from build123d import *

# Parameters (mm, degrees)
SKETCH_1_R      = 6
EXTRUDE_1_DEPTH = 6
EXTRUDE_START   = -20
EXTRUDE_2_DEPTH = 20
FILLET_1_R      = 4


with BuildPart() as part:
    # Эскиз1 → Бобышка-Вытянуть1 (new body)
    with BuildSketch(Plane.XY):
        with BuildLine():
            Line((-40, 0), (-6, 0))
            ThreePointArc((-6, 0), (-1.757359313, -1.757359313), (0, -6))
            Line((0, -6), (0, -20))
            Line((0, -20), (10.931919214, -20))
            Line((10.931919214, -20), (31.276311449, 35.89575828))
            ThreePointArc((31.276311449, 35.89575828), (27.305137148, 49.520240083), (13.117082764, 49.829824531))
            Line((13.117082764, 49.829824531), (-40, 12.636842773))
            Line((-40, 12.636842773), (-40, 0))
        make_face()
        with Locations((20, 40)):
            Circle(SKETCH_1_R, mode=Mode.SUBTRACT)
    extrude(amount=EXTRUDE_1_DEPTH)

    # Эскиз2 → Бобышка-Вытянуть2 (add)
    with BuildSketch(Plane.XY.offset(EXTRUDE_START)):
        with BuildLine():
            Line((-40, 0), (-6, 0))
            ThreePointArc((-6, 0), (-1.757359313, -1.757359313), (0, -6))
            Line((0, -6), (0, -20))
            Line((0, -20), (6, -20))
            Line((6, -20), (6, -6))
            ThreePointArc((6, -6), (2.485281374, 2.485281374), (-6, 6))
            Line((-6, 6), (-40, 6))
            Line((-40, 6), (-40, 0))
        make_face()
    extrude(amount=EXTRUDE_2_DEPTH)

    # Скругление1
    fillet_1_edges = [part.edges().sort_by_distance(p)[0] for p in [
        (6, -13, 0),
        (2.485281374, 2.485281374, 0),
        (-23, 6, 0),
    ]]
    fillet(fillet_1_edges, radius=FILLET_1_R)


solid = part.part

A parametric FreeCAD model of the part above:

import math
import FreeCAD as App
import Part
import Sketcher

V = App.Vector
Q = App.Units.Quantity


def edges_at(feature, points):
    """Names of the edges that pass closest to the given points."""
    edges = feature.Shape.Edges
    near = lambda p: min(range(len(edges)), key=lambda i: edges[i].distToShape(Part.Vertex(*p))[0])
    return sorted({f"Edge{near(p) + 1}" for p in points})

doc = App.newDocument("Part")
params = doc.addObject("Spreadsheet::Sheet", "Params")
for row, (alias, value) in enumerate([
    ("sketch1_diameter", "12 mm"),
    ("sketch1_radius", "12 mm"),
    ("sketch1_width", "34 mm"),
    ("sketch1_height", "14 mm"),
    ("pad1_length", "6 mm"),
    ("sketch2_radius", "6 mm"),
    ("sketch2_width", "34 mm"),
    ("sketch2_height", "14 mm"),
    ("pad2_length", "20 mm"),
    ("fillet_radius", "4 mm"),
], start=1):
    params.set(f"A{row}", alias)
    params.set(f"B{row}", "=" + value)
    params.setAlias(f"B{row}", alias)

body = doc.addObject("PartDesign::Body", "Body")

# Sketch on XY plane
sketch1 = doc.addObject("Sketcher::SketchObject", "Sketch")
body.addObject(sketch1)
sketch1.AttachmentSupport = (doc.XY_Plane, [""])
sketch1.MapMode = "FlatFace"
sketch1.addGeometry(Part.LineSegment(V(-40, 0, 0), V(-6, 0, 0)), False)
sketch1.addGeometry(Part.ArcOfCircle(Part.Circle(V(-6, -6, 0), V(0, 0, 1), 6), math.radians(0), math.radians(90)), False)
sketch1.addGeometry(Part.LineSegment(V(0, -6, 0), V(0, -20, 0)), False)
sketch1.addGeometry(Part.LineSegment(V(0, -20, 0), V(11, -20, 0)), False)
sketch1.addGeometry(Part.LineSegment(V(11, -20, 0), V(31, 36, 0)), False)
sketch1.addGeometry(Part.ArcOfCircle(Part.Circle(V(20, 40, 0), V(0, 0, 1), 12), math.radians(-20), math.radians(125)), False)
sketch1.addGeometry(Part.LineSegment(V(13, 50, 0), V(-40, 13, 0)), False)
sketch1.addGeometry(Part.LineSegment(V(-40, 13, 0), V(-40, 0, 0)), False)
sketch1.addGeometry(Part.Circle(V(20, 40, 0), V(0, 0, 1), 6), False)
sketch1.addConstraint(Sketcher.Constraint("Tangent", 0, 2, 1, 2))
sketch1.addConstraint(Sketcher.Constraint("Tangent", 1, 1, 2, 1))
sketch1.addConstraint(Sketcher.Constraint("Coincident", 2, 2, 3, 1))
sketch1.addConstraint(Sketcher.Constraint("Coincident", 3, 2, 4, 1))
sketch1.addConstraint(Sketcher.Constraint("Tangent", 4, 2, 5, 1))
sketch1.addConstraint(Sketcher.Constraint("Tangent", 5, 2, 6, 1))
sketch1.addConstraint(Sketcher.Constraint("Coincident", 6, 2, 7, 1))
sketch1.addConstraint(Sketcher.Constraint("Coincident", 7, 2, 0, 1))
sketch1.addConstraint(Sketcher.Constraint("Horizontal", 0))
sketch1.addConstraint(Sketcher.Constraint("Vertical", 2))
sketch1.addConstraint(Sketcher.Constraint("Horizontal", 3))
sketch1.addConstraint(Sketcher.Constraint("Vertical", 7))
sketch1.addConstraint(Sketcher.Constraint("Coincident", 8, 3, 5, 3))
sketch1.addConstraint(Sketcher.Constraint("Equal", 1, 8))
sketch1.addConstraint(Sketcher.Constraint("PointOnObject", 0, 2, -1))
sketch1.addConstraint(Sketcher.Constraint("PointOnObject", 1, 1, -2))
sketch1.addConstraint(Sketcher.Constraint("Diameter", 8, 12.0))
sketch1.addConstraint(Sketcher.Constraint("Radius", 5, 12.0))
sketch1.addConstraint(Sketcher.Constraint("DistanceX", 0, 1, 0, 2, 34.0))
sketch1.addConstraint(Sketcher.Constraint("DistanceY", 2, 2, 2, 1, 14.0))
sketch1.addConstraint(Sketcher.Constraint("Angle", 4, Q("70 deg")))
sketch1.addConstraint(Sketcher.Constraint("Angle", 6, Q("-145 deg")))
sketch1.addConstraint(Sketcher.Constraint("DistanceX", -1, 1, 5, 3, 20.0))
sketch1.addConstraint(Sketcher.Constraint("DistanceY", -1, 1, 5, 3, 40.0))
sketch1.setExpression("Constraints[16]", "Params.sketch1_diameter")
sketch1.setExpression("Constraints[17]", "Params.sketch1_radius")
sketch1.setExpression("Constraints[18]", "Params.sketch1_width")
sketch1.setExpression("Constraints[19]", "Params.sketch1_height")
pad1 = doc.addObject("PartDesign::Pad", "Pad")
body.addObject(pad1)
pad1.Profile = sketch1
pad1.setExpression("Length", "Params.pad1_length")

# Sketch on XY plane
sketch2 = doc.addObject("Sketcher::SketchObject", "Sketch001")
body.addObject(sketch2)
sketch2.AttachmentSupport = (doc.XY_Plane, [""])
sketch2.MapMode = "FlatFace"
sketch2.AttachmentOffset = App.Placement(V(0, 0, -20), App.Rotation())
sketch2.addGeometry(Part.LineSegment(V(-40, 0, 0), V(-6, 0, 0)), False)
sketch2.addGeometry(Part.ArcOfCircle(Part.Circle(V(-6, -6, 0), V(0, 0, 1), 6), math.radians(0), math.radians(90)), False)
sketch2.addGeometry(Part.LineSegment(V(0, -6, 0), V(0, -20, 0)), False)
sketch2.addGeometry(Part.LineSegment(V(0, -20, 0), V(6, -20, 0)), False)
sketch2.addGeometry(Part.LineSegment(V(6, -20, 0), V(6, -6, 0)), False)
sketch2.addGeometry(Part.ArcOfCircle(Part.Circle(V(-6, -6, 0), V(0, 0, 1), 12), math.radians(0), math.radians(90)), False)
sketch2.addGeometry(Part.LineSegment(V(-6, 6, 0), V(-40, 6, 0)), False)
sketch2.addGeometry(Part.LineSegment(V(-40, 6, 0), V(-40, 0, 0)), False)
sketch2.addConstraint(Sketcher.Constraint("Tangent", 0, 2, 1, 2))
sketch2.addConstraint(Sketcher.Constraint("Tangent", 1, 1, 2, 1))
sketch2.addConstraint(Sketcher.Constraint("Coincident", 2, 2, 3, 1))
sketch2.addConstraint(Sketcher.Constraint("Coincident", 3, 2, 4, 1))
sketch2.addConstraint(Sketcher.Constraint("Tangent", 4, 2, 5, 1))
sketch2.addConstraint(Sketcher.Constraint("Tangent", 5, 2, 6, 1))
sketch2.addConstraint(Sketcher.Constraint("Coincident", 6, 2, 7, 1))
sketch2.addConstraint(Sketcher.Constraint("Coincident", 7, 2, 0, 1))
sketch2.addConstraint(Sketcher.Constraint("Horizontal", 0))
sketch2.addConstraint(Sketcher.Constraint("Vertical", 2))
sketch2.addConstraint(Sketcher.Constraint("Horizontal", 3))
sketch2.addConstraint(Sketcher.Constraint("Vertical", 4))
sketch2.addConstraint(Sketcher.Constraint("Horizontal", 6))
sketch2.addConstraint(Sketcher.Constraint("Vertical", 7))
sketch2.addConstraint(Sketcher.Constraint("Coincident", 5, 3, 1, 3))
sketch2.addConstraint(Sketcher.Constraint("Symmetric", 4, 2, 5, 2, -1, 1))
sketch2.addConstraint(Sketcher.Constraint("PointOnObject", 0, 2, -1))
sketch2.addConstraint(Sketcher.Constraint("Radius", 1, 6.0))
sketch2.addConstraint(Sketcher.Constraint("DistanceX", 0, 1, 0, 2, 34.0))
sketch2.addConstraint(Sketcher.Constraint("DistanceY", 2, 2, 2, 1, 14.0))
sketch2.setExpression("Constraints[17]", "Params.sketch2_radius")
sketch2.setExpression("Constraints[18]", "Params.sketch2_width")
sketch2.setExpression("Constraints[19]", "Params.sketch2_height")
pad2 = doc.addObject("PartDesign::Pad", "Pad001")
body.addObject(pad2)
pad2.Profile = sketch2
pad2.setExpression("Length", "Params.pad2_length")
doc.recompute()

fillet = doc.addObject("PartDesign::Fillet", "Fillet")
body.addObject(fillet)
fillet.Base = (pad2, edges_at(pad2, [(6, -13, 0), (2.485, 2.485, 0), (-23, 6, 0)]))
fillet.setExpression("Radius", "Params.fillet_radius")

doc.recompute()
